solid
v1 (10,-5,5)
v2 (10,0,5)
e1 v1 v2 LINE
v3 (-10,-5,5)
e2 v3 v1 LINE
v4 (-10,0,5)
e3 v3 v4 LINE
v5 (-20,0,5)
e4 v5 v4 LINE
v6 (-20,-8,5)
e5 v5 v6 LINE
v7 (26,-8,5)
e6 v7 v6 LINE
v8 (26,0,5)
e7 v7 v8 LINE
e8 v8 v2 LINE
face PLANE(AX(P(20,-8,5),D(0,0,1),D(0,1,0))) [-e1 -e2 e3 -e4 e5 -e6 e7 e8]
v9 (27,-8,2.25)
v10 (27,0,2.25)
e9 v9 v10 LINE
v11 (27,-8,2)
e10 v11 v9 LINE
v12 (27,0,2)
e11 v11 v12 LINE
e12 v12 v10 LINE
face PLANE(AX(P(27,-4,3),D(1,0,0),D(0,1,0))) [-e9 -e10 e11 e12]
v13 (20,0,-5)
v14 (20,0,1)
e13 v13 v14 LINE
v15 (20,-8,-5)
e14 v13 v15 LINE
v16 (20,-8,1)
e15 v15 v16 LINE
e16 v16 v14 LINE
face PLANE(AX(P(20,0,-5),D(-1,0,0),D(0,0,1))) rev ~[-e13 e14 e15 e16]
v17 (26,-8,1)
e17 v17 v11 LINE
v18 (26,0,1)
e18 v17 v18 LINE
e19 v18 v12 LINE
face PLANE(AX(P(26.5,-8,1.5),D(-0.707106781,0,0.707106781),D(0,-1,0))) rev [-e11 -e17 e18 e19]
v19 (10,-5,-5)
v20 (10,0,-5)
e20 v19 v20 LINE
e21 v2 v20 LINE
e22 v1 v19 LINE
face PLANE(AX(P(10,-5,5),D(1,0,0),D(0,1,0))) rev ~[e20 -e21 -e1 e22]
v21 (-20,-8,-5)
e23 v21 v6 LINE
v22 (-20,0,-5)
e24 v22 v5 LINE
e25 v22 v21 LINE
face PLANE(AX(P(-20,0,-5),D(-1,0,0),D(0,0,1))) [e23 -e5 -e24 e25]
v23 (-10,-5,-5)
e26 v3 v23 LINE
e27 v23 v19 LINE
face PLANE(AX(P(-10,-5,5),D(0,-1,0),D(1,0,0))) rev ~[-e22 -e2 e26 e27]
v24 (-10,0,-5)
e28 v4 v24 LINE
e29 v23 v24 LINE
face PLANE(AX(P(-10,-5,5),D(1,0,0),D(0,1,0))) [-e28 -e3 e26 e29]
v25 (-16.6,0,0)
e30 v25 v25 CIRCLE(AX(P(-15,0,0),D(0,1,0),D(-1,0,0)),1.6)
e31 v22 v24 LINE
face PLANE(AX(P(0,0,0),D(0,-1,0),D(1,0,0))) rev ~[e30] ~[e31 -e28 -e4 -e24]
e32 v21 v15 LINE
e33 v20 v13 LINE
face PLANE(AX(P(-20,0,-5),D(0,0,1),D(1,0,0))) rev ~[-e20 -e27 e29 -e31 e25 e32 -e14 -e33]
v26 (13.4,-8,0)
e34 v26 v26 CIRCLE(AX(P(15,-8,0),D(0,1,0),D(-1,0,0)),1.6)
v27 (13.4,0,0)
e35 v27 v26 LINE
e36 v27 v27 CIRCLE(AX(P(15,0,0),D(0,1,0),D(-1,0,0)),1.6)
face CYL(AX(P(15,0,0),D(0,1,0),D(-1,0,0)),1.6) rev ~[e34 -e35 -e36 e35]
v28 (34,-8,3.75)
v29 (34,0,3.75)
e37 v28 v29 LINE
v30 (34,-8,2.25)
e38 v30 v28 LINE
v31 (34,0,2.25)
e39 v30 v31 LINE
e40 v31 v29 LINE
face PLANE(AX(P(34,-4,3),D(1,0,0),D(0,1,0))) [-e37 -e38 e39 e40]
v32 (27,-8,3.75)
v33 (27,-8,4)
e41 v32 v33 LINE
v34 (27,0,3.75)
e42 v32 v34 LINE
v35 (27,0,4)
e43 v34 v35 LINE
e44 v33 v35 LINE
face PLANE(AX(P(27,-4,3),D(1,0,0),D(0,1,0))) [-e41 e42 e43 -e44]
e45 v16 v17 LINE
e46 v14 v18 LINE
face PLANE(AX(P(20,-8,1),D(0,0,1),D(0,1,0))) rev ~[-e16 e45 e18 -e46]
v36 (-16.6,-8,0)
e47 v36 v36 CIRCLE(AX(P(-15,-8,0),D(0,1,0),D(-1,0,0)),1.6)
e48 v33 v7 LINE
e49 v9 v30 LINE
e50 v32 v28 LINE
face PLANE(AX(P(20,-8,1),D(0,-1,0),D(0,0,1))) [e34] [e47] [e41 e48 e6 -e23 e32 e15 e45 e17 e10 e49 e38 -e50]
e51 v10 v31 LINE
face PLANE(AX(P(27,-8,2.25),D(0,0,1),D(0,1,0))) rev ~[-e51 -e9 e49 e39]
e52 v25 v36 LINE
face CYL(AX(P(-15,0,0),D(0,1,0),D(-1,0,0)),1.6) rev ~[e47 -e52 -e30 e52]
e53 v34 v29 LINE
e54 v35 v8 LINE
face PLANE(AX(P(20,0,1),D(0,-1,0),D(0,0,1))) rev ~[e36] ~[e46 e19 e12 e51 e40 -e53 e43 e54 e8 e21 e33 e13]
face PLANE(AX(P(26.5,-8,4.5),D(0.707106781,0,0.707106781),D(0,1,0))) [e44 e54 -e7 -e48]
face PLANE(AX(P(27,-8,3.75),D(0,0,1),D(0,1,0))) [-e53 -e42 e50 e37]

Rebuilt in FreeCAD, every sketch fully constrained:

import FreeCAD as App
import Part
import Sketcher
Q = App.Units.Quantity


def edges_at(feature, points):
    """Names of the edges that pass closest to the given points."""
    edges = feature.Shape.Edges
    near = lambda p: min(range(len(edges)), key=lambda i: edges[i].distToShape(Part.Vertex(*p))[0])
    return sorted({f"Edge{near(p) + 1}" for p in points})

doc = App.newDocument("Part")
body = doc.addObject("PartDesign::Body", "Body")

sketch1 = body.newObject("Sketcher::SketchObject", "Sketch")
sketch1.AttachmentSupport = (doc.getObject("XZ_Plane"), [""])
sketch1.MapMode = "FlatFace"
sketch1.addGeometry([
    Part.LineSegment(App.Vector(-20, 5, 0), App.Vector(-20, -5, 0)),
    Part.LineSegment(App.Vector(-20, -5, 0), App.Vector(20, -5, 0)),
    Part.LineSegment(App.Vector(20, -5, 0), App.Vector(20, 5, 0)),
    Part.LineSegment(App.Vector(20, 5, 0), App.Vector(-20, 5, 0)),
], False)
sketch1.addConstraint([
    Sketcher.Constraint("Coincident", 0, 2, 1, 1),
    Sketcher.Constraint("Coincident", 1, 2, 2, 1),
    Sketcher.Constraint("Coincident", 2, 2, 3, 1),
    Sketcher.Constraint("Coincident", 3, 2, 0, 1),
    Sketcher.Constraint("Vertical", 0),
    Sketcher.Constraint("Horizontal", 1),
    Sketcher.Constraint("Vertical", 2),
    Sketcher.Constraint("Horizontal", 3),
    Sketcher.Constraint("Symmetric", 0, 2, 2, 2, -1, 1),
    Sketcher.Constraint("DistanceX", 1, 1, 1, 2, Q("40 mm")),
    Sketcher.Constraint("DistanceY", 0, 2, 0, 1, Q("10 mm")),
])
pad1 = body.newObject("PartDesign::Pad", "Pad")
pad1.Profile = sketch1
pad1.Length = 8

sketch2 = body.newObject("Sketcher::SketchObject", "Sketch001")
sketch2.AttachmentSupport = (doc.getObject("XY_Plane"), [""])
sketch2.MapMode = "FlatFace"
sketch2.AttachmentOffset = App.Placement(App.Vector(0, 0, 5), App.Rotation())
sketch2.addGeometry([
    Part.LineSegment(App.Vector(-10, 0, 0), App.Vector(-10, -5, 0)),
    Part.LineSegment(App.Vector(-10, -5, 0), App.Vector(10, -5, 0)),
    Part.LineSegment(App.Vector(10, -5, 0), App.Vector(10, 0, 0)),
    Part.LineSegment(App.Vector(10, 0, 0), App.Vector(-10, 0, 0)),
], False)
sketch2.addConstraint([
    Sketcher.Constraint("Coincident", 0, 2, 1, 1),
    Sketcher.Constraint("Coincident", 1, 2, 2, 1),
    Sketcher.Constraint("Coincident", 2, 2, 3, 1),
    Sketcher.Constraint("Coincident", 3, 2, 0, 1),
    Sketcher.Constraint("Vertical", 0),
    Sketcher.Constraint("Horizontal", 1),
    Sketcher.Constraint("Vertical", 2),
    Sketcher.Constraint("Horizontal", 3),
    Sketcher.Constraint("Symmetric", 2, 2, 3, 2, -1, 1),
    Sketcher.Constraint("DistanceX", 1, 1, 1, 2, Q("20 mm")),
    Sketcher.Constraint("DistanceY", 0, 2, 0, 1, Q("5 mm")),
])
pocket1 = body.newObject("PartDesign::Pocket", "Pocket")
pocket1.Profile = sketch2
pocket1.Type = "ThroughAll"

sketch3 = body.newObject("Sketcher::SketchObject", "Sketch002")
sketch3.AttachmentSupport = (doc.getObject("XZ_Plane"), [""])
sketch3.MapMode = "FlatFace"
sketch3.addGeometry([
    Part.Circle(App.Vector(15, 0, 0), App.Vector(0, 0, 1), 1.6),
    Part.Circle(App.Vector(-15, 0, 0), App.Vector(0, 0, 1), 1.6),
], False)
sketch3.addConstraint([
    Sketcher.Constraint("Equal", 0, 1),
    Sketcher.Constraint("Symmetric", 0, 3, 1, 3, -1, 1),
    Sketcher.Constraint("PointOnObject", 0, 3, -1),
    Sketcher.Constraint("Diameter", 0, Q("3.2 mm")),
    Sketcher.Constraint("DistanceX", -1, 1, 0, 3, Q("15 mm")),
])
pocket2 = body.newObject("PartDesign::Pocket", "Pocket001")
pocket2.Profile = sketch3
pocket2.Type = "ThroughAll"
pocket2.Reversed = True

sketch4 = body.newObject("Sketcher::SketchObject", "Sketch003")
sketch4.AttachmentSupport = (doc.getObject("YZ_Plane"), [""])
sketch4.MapMode = "FlatFace"
sketch4.AttachmentOffset = App.Placement(App.Vector(0, 0, 20), App.Rotation())
sketch4.addGeometry([
    Part.LineSegment(App.Vector(-8, 5, 0), App.Vector(-8, 1, 0)),
    Part.LineSegment(App.Vector(-8, 1, 0), App.Vector(0, 1, 0)),
    Part.LineSegment(App.Vector(0, 1, 0), App.Vector(0, 5, 0)),
    Part.LineSegment(App.Vector(0, 5, 0), App.Vector(-8, 5, 0)),
], False)
sketch4.addConstraint([
    Sketcher.Constraint("Coincident", 0, 2, 1, 1),
    Sketcher.Constraint("Coincident", 1, 2, 2, 1),
    Sketcher.Constraint("Coincident", 2, 2, 3, 1),
    Sketcher.Constraint("Coincident", 3, 2, 0, 1),
    Sketcher.Constraint("Vertical", 0),
    Sketcher.Constraint("Horizontal", 1),
    Sketcher.Constraint("Vertical", 2),
    Sketcher.Constraint("Horizontal", 3),
    Sketcher.Constraint("PointOnObject", 1, 2, -2),
    Sketcher.Constraint("DistanceX", 1, 1, 1, 2, Q("8 mm")),
    Sketcher.Constraint("DistanceY", 0, 2, 0, 1, Q("4 mm")),
    Sketcher.Constraint("DistanceY", -1, 1, 0, 2, Q("1 mm")),
])
pad2 = body.newObject("PartDesign::Pad", "Pad001")
pad2.Profile = sketch4
pad2.Length = 7

sketch5 = body.newObject("Sketcher::SketchObject", "Sketch004")
sketch5.AttachmentSupport = (doc.getObject("YZ_Plane"), [""])
sketch5.MapMode = "FlatFace"
sketch5.AttachmentOffset = App.Placement(App.Vector(0, 0, 27), App.Rotation())
sketch5.addGeometry([
    Part.LineSegment(App.Vector(-8, 3.8, 0), App.Vector(-8, 2.2, 0)),
    Part.LineSegment(App.Vector(-8, 2.2, 0), App.Vector(0, 2.2, 0)),
    Part.LineSegment(App.Vector(0, 2.2, 0), App.Vector(0, 3.8, 0)),
    Part.LineSegment(App.Vector(0, 3.8, 0), App.Vector(-8, 3.8, 0)),
], False)
sketch5.addConstraint([
    Sketcher.Constraint("Coincident", 0, 2, 1, 1),
    Sketcher.Constraint("Coincident", 1, 2, 2, 1),
    Sketcher.Constraint("Coincident", 2, 2, 3, 1),
    Sketcher.Constraint("Coincident", 3, 2, 0, 1),
    Sketcher.Constraint("Vertical", 0),
    Sketcher.Constraint("Horizontal", 1),
    Sketcher.Constraint("Vertical", 2),
    Sketcher.Constraint("Horizontal", 3),
    Sketcher.Constraint("PointOnObject", 1, 2, -2),
    Sketcher.Constraint("DistanceX", 1, 1, 1, 2, Q("8 mm")),
    Sketcher.Constraint("DistanceY", 0, 2, 0, 1, Q("1.5 mm")),
    Sketcher.Constraint("DistanceY", -1, 1, 0, 2, Q("2.25 mm")),
])
pad3 = body.newObject("PartDesign::Pad", "Pad002")
pad3.Profile = sketch5
pad3.Length = 7
doc.recompute()

chamfer = body.newObject("PartDesign::Chamfer", "Chamfer")
chamfer.Base = (pad3, edges_at(pad3, [(27, -4, 1), (27, -4, 5)]))
chamfer.Size = 1

doc.recompute()
